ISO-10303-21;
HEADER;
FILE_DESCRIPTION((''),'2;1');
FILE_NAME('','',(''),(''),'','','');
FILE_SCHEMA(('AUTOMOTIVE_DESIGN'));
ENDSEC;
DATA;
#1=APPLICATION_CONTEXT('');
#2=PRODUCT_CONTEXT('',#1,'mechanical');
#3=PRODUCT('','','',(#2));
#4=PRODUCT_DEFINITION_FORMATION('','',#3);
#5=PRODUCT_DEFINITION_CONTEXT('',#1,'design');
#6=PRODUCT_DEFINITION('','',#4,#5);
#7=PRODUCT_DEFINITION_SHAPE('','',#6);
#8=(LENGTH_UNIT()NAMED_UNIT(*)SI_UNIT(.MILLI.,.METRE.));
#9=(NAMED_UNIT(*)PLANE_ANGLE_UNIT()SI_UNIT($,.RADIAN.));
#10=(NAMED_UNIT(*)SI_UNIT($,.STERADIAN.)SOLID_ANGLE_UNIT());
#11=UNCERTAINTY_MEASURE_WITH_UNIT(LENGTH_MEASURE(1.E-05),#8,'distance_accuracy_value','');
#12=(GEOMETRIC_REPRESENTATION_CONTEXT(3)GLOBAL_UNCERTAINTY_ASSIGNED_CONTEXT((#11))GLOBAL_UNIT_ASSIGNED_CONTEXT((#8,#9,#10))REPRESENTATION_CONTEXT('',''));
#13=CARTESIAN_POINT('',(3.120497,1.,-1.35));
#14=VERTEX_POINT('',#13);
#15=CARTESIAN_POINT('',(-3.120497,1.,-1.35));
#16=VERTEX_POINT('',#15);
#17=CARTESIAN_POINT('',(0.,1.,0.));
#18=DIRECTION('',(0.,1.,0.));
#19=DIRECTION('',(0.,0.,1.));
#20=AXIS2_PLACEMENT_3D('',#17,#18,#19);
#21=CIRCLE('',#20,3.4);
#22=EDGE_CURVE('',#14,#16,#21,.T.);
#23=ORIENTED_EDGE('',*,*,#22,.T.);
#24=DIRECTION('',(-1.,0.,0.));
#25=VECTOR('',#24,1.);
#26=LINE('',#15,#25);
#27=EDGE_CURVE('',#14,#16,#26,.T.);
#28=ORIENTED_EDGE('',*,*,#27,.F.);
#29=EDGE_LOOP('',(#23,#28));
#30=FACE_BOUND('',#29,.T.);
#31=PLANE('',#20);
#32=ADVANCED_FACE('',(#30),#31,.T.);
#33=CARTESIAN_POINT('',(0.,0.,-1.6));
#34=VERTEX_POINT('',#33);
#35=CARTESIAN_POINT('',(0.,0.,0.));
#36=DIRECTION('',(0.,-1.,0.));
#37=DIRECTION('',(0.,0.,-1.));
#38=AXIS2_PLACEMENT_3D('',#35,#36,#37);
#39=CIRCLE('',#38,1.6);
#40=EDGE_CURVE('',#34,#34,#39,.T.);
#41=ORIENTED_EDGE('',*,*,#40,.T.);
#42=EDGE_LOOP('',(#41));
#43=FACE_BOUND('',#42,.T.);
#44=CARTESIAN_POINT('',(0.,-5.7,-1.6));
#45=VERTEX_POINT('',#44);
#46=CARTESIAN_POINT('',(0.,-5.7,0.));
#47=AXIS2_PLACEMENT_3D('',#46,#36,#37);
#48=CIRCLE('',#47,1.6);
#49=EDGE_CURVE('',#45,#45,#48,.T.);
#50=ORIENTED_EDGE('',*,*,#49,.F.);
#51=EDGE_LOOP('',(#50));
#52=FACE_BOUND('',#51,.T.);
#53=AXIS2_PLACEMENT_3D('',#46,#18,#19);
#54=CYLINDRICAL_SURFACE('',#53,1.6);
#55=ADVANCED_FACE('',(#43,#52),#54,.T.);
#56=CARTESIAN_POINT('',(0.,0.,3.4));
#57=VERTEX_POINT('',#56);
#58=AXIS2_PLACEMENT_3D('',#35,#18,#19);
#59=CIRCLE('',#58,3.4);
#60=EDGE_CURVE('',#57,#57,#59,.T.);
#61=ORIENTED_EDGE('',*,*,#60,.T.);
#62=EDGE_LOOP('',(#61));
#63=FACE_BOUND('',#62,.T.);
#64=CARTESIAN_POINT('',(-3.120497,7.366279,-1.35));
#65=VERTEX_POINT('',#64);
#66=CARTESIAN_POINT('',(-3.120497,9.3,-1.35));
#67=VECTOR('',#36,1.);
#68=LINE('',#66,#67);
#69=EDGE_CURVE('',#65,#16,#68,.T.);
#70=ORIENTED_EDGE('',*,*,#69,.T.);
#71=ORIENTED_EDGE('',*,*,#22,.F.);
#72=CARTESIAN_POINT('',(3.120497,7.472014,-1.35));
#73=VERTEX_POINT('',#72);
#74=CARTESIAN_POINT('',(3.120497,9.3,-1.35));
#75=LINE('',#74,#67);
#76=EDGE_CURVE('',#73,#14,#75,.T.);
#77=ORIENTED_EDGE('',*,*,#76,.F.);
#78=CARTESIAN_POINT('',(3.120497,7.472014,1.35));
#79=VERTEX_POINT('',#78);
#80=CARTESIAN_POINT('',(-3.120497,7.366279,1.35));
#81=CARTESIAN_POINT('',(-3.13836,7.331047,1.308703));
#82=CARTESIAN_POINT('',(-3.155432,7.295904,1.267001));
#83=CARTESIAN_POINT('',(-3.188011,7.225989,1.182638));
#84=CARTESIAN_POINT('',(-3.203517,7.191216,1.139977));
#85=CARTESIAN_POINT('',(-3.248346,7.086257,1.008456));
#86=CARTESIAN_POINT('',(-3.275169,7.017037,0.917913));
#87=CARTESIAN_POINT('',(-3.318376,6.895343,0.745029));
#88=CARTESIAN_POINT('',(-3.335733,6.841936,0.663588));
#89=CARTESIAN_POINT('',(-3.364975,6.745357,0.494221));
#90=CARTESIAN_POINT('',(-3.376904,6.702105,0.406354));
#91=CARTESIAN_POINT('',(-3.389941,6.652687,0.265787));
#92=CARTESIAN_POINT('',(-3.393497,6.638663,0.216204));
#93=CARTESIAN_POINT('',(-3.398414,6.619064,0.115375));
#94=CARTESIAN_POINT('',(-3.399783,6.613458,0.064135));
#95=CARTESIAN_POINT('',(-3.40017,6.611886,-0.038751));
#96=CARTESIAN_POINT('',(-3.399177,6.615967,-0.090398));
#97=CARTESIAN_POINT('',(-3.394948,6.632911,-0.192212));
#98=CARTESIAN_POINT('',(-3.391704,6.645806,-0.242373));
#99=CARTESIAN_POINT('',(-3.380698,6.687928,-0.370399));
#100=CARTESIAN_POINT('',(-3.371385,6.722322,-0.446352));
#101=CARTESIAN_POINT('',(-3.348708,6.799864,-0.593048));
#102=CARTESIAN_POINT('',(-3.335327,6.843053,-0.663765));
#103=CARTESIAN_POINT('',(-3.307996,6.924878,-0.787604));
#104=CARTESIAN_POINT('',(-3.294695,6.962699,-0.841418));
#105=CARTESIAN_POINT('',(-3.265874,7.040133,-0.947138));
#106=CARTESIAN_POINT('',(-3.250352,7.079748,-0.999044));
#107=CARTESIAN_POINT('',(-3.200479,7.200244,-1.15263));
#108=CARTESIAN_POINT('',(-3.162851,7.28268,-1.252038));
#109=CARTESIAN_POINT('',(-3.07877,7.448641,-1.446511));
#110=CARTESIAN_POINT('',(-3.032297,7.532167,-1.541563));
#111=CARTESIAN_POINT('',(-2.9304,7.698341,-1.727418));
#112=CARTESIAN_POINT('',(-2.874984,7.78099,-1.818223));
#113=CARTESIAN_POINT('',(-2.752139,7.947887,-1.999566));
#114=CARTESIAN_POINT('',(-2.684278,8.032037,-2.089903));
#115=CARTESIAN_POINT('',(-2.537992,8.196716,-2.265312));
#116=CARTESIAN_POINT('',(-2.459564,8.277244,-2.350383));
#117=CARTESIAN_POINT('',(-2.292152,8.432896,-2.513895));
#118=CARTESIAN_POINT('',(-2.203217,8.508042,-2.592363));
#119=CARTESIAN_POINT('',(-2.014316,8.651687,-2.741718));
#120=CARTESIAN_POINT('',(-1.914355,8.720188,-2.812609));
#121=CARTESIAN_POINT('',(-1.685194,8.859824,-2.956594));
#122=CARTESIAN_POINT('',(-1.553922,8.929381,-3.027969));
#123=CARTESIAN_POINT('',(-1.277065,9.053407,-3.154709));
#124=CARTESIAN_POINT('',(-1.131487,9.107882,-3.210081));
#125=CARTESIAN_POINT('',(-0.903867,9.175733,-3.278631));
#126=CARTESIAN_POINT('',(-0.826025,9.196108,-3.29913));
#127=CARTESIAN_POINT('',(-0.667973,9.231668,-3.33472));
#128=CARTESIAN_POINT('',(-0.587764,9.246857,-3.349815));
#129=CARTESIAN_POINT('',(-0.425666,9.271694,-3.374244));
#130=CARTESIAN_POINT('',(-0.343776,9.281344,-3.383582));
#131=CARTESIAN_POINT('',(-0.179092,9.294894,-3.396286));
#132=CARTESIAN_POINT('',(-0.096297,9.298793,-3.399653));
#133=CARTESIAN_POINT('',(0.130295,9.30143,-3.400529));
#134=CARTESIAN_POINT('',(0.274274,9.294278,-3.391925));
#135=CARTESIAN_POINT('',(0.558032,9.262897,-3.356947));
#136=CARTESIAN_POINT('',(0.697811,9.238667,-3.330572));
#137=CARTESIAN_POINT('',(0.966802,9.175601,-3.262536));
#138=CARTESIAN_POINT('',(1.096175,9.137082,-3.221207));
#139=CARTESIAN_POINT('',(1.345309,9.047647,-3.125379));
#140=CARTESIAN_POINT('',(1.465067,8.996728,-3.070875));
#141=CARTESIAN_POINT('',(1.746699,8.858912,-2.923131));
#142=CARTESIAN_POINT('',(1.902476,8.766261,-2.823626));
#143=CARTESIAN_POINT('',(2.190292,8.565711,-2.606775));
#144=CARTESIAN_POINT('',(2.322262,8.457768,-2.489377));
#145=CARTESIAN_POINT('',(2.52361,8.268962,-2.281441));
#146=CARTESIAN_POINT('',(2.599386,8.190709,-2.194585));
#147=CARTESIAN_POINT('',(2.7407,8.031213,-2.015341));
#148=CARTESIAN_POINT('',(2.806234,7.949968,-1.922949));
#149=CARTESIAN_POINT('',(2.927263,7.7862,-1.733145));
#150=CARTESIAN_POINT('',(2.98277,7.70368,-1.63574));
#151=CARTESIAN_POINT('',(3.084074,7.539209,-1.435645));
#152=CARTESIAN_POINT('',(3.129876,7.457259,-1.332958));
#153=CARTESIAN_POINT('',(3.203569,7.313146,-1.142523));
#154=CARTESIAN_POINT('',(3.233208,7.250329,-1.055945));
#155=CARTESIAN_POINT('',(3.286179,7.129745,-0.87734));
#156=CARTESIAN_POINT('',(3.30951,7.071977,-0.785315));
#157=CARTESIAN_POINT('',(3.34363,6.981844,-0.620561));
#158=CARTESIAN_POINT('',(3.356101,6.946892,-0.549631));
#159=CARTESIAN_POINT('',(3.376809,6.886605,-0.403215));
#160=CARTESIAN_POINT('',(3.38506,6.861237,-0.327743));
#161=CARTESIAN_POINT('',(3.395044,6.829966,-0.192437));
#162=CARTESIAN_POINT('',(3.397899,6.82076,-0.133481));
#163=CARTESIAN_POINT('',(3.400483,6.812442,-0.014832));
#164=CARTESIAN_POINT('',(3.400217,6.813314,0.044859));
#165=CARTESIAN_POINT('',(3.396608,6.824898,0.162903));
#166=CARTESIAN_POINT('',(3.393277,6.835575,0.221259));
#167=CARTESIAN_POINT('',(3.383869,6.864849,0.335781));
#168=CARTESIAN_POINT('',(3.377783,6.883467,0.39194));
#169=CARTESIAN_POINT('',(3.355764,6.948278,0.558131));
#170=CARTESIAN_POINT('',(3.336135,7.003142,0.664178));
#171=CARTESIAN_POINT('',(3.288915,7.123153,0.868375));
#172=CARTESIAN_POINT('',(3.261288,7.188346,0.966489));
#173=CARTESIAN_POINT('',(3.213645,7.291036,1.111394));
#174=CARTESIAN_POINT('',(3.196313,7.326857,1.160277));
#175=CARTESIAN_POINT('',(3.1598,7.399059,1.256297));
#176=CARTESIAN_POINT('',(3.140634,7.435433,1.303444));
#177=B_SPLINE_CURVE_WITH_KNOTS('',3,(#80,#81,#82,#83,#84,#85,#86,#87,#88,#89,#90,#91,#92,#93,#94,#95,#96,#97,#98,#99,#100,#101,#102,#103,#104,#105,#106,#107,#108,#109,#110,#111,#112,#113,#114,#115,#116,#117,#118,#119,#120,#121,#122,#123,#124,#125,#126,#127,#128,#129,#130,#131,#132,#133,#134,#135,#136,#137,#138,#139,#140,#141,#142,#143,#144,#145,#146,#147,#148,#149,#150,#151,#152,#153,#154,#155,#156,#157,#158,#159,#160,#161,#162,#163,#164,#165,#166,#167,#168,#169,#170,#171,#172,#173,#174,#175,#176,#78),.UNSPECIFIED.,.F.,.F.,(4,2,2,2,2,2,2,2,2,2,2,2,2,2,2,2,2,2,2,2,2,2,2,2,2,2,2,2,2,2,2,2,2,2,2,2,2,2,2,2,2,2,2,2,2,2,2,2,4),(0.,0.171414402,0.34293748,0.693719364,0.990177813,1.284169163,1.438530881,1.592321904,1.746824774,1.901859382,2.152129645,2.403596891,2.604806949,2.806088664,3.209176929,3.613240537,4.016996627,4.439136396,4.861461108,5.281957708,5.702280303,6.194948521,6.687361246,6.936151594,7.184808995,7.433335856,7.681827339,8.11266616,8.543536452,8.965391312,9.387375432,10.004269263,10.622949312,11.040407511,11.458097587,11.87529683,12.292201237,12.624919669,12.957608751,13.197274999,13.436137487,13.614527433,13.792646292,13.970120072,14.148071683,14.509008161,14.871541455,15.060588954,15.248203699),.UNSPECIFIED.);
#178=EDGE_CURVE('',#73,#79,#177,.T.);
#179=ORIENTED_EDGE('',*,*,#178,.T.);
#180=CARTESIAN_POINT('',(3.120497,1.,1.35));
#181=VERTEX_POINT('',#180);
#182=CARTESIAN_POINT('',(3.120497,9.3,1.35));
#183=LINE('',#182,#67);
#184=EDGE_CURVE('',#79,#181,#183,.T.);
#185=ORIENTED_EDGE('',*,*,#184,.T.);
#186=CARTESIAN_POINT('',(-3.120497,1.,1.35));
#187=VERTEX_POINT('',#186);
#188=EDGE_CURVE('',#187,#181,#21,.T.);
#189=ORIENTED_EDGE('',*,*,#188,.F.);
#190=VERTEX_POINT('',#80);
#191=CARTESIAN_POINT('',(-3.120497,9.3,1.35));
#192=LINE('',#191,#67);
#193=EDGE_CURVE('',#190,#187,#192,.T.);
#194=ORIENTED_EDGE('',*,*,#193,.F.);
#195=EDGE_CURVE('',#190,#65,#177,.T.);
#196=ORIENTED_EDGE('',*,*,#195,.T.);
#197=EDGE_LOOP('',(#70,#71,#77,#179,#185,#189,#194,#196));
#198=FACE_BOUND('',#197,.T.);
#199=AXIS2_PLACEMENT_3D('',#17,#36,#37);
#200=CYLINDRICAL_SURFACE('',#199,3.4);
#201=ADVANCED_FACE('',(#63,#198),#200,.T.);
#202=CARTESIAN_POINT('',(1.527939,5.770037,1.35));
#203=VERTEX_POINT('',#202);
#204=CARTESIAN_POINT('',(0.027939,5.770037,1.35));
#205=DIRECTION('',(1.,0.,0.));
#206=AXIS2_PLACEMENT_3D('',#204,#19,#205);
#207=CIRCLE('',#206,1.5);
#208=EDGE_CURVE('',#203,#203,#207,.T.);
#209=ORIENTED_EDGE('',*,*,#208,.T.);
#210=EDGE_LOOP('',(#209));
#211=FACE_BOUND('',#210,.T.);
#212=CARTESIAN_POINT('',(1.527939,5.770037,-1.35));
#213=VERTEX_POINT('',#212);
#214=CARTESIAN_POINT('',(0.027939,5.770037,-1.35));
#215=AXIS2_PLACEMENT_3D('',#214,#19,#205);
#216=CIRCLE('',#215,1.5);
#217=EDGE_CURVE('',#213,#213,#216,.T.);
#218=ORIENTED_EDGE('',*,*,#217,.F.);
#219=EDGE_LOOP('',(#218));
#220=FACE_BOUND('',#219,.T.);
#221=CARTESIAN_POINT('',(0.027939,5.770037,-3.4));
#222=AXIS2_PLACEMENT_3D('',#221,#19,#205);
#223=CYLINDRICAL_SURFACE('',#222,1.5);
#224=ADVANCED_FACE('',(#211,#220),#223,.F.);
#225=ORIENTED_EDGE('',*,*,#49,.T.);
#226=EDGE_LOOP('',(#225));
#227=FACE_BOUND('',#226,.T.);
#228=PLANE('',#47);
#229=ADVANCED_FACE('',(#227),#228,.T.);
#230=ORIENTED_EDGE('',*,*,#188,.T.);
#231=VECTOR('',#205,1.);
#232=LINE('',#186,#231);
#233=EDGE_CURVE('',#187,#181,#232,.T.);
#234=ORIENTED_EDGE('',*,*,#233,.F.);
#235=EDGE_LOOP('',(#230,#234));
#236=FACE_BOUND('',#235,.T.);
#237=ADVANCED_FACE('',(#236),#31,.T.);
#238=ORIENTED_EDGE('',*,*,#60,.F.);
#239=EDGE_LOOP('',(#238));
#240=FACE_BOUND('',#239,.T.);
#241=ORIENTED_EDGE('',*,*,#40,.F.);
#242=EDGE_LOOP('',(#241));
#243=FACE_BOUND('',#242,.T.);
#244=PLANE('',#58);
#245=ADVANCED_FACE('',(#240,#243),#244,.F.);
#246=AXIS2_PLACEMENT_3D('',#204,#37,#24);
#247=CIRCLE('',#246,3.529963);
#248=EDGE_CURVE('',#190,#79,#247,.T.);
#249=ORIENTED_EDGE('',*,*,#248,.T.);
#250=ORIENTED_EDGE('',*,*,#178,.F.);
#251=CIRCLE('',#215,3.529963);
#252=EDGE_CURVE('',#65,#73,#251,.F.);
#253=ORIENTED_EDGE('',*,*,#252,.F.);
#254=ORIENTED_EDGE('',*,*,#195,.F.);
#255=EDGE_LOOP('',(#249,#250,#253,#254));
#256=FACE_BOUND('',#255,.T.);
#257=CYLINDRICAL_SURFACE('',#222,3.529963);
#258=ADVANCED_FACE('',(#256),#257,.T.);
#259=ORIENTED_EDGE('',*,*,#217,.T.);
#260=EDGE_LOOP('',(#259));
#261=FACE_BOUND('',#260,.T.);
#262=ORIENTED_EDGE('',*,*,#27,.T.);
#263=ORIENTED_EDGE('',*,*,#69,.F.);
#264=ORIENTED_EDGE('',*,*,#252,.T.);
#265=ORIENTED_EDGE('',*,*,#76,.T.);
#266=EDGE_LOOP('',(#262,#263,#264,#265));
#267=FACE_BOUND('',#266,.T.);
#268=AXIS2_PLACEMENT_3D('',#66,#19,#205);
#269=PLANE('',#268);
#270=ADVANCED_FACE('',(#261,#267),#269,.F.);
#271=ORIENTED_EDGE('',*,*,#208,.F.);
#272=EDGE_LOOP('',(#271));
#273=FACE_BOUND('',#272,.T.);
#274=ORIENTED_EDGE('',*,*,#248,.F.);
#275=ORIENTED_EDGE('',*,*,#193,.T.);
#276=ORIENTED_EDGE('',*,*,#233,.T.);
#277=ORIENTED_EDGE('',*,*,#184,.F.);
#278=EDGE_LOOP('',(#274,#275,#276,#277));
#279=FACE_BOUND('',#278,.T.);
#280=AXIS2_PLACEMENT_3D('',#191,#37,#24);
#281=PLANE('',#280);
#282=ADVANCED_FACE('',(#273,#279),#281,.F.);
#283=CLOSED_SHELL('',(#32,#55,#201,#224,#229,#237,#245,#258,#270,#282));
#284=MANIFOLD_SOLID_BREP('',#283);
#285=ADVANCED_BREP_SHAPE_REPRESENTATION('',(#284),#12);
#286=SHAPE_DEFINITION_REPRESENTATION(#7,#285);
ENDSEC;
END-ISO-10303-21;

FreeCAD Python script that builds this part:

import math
import FreeCAD as App
import Part
import Sketcher
Q = App.Units.Quantity

doc = App.newDocument("Part")
body = doc.addObject("PartDesign::Body", "Body")

# Sketch on XZ plane
sketch1 = doc.addObject("Sketcher::SketchObject", "Sketch")
body.addObject(sketch1)
sketch1.AttachmentSupport = (doc.XZ_Plane, [""])
sketch1.MapMode = "FlatFace"
sketch1.addGeometry(Part.Circle(App.Vector(0, 0, 0), App.Vector(0, 0, 1), 3.4), False)
sketch1.addConstraint(Sketcher.Constraint("Coincident", 0, 3, -1, 1))
sketch1.addConstraint(Sketcher.Constraint("Diameter", 0, Q("6.8 mm")))
pad1 = doc.addObject("PartDesign::Pad", "Pad")
body.addObject(pad1)
pad1.Profile = sketch1
pad1.Length = 1
pad1.Reversed = True

# Sketch on XZ plane
sketch2 = doc.addObject("Sketcher::SketchObject", "Sketch001")
body.addObject(sketch2)
sketch2.AttachmentSupport = (doc.XZ_Plane, [""])
sketch2.MapMode = "FlatFace"
sketch2.AttachmentOffset = App.Placement(App.Vector(0, 0, -1), App.Rotation())
sketch2.addGeometry(Part.LineSegment(App.Vector(3.120497, -1.35, 0), App.Vector(-3.120497, -1.35, 0)), False)
sketch2.addGeometry(Part.ArcOfCircle(Part.Circle(App.Vector(0, 0, 0), App.Vector(0, 0, 1), 3.4), math.radians(156.60556), math.radians(203.39444)), False)
sketch2.addGeometry(Part.LineSegment(App.Vector(-3.120497, 1.35, 0), App.Vector(3.120497, 1.35, 0)), False)
sketch2.addGeometry(Part.ArcOfCircle(Part.Circle(App.Vector(0, 0, 0), App.Vector(0, 0, 1), 3.4), math.radians(-23.39444), math.radians(23.39444)), False)
sketch2.addConstraint(Sketcher.Constraint("Coincident", 0, 2, 1, 2))
sketch2.addConstraint(Sketcher.Constraint("Coincident", 1, 1, 2, 1))
sketch2.addConstraint(Sketcher.Constraint("Coincident", 2, 2, 3, 2))
sketch2.addConstraint(Sketcher.Constraint("Coincident", 3, 1, 0, 1))
sketch2.addConstraint(Sketcher.Constraint("Horizontal", 0))
sketch2.addConstraint(Sketcher.Constraint("Horizontal", 2))
sketch2.addConstraint(Sketcher.Constraint("Coincident", 1, 3, -1, 1))
sketch2.addConstraint(Sketcher.Constraint("Coincident", 3, 3, -1, 1))
sketch2.addConstraint(Sketcher.Constraint("Equal", 1, 3))
sketch2.addConstraint(Sketcher.Constraint("Vertical", 0, 2, 1, 1))
sketch2.addConstraint(Sketcher.Constraint("Radius", 1, Q("3.4 mm")))
sketch2.addConstraint(Sketcher.Constraint("DistanceY", 0, 2, 1, 1, Q("2.7 mm")))
pad2 = doc.addObject("PartDesign::Pad", "Pad001")
body.addObject(pad2)
pad2.Profile = sketch2
pad2.Length = 8.3
pad2.Reversed = True

# Sketch on XY plane
sketch3 = doc.addObject("Sketcher::SketchObject", "Sketch002")
body.addObject(sketch3)
sketch3.AttachmentSupport = (doc.XY_Plane, [""])
sketch3.MapMode = "FlatFace"
sketch3.AttachmentOffset = App.Placement(App.Vector(0, 0, 1.35), App.Rotation())
sketch3.addGeometry(Part.LineSegment(App.Vector(-3.4, 9.766289, 0), App.Vector(-3.4, 6.612576, 0)), False)
sketch3.addGeometry(Part.ArcOfCircle(Part.Circle(App.Vector(0.027939, 5.770037, 0), App.Vector(0, 0, 1), 3.529963), math.radians(17.201981), math.radians(166.191237)), False)
sketch3.addGeometry(Part.LineSegment(App.Vector(3.4, 6.813992, 0), App.Vector(3.4, 9.766289, 0)), False)
sketch3.addGeometry(Part.LineSegment(App.Vector(3.4, 9.766289, 0), App.Vector(-3.4, 9.766289, 0)), False)
sketch3.addConstraint(Sketcher.Constraint("Coincident", 0, 2, 1, 2))
sketch3.addConstraint(Sketcher.Constraint("Coincident", 1, 1, 2, 1))
sketch3.addConstraint(Sketcher.Constraint("Coincident", 2, 2, 3, 1))
sketch3.addConstraint(Sketcher.Constraint("Coincident", 3, 2, 0, 1))
sketch3.addConstraint(Sketcher.Constraint("Vertical", 0))
sketch3.addConstraint(Sketcher.Constraint("Vertical", 2))
sketch3.addConstraint(Sketcher.Constraint("Horizontal", 3))
sketch3.addConstraint(Sketcher.Constraint("DistanceX", 3, 2, 3, 1, Q("6.8 mm")))
sketch3.addConstraint(Sketcher.Constraint("DistanceX", 0, 2, -1, 1, Q("3.4 mm")))
sketch3.addConstraint(Sketcher.Constraint("Radius", 1, Q("3.529963 mm")))
sketch3.addConstraint(Sketcher.Constraint("DistanceY", 0, 2, 0, 1, Q("3.153713 mm")))
sketch3.addConstraint(Sketcher.Constraint("DistanceY", 2, 1, 2, 2, Q("2.952297 mm")))
sketch3.addConstraint(Sketcher.Constraint("DistanceY", -1, 1, 2, 2, Q("9.766289 mm")))
pocket1 = doc.addObject("PartDesign::Pocket", "Pocket")
body.addObject(pocket1)
pocket1.Profile = sketch3
pocket1.Type = "ThroughAll"

# Sketch on XY plane
sketch4 = doc.addObject("Sketcher::SketchObject", "Sketch003")
body.addObject(sketch4)
sketch4.AttachmentSupport = (doc.XY_Plane, [""])
sketch4.MapMode = "FlatFace"
sketch4.AttachmentOffset = App.Placement(App.Vector(0, 0, 1.35), App.Rotation())
sketch4.addGeometry(Part.Circle(App.Vector(0.027939, 5.770037, 0), App.Vector(0, 0, 1), 1.5), False)
sketch4.addConstraint(Sketcher.Constraint("Diameter", 0, Q("3 mm")))
sketch4.addConstraint(Sketcher.Constraint("DistanceX", -1, 1, 0, 3, Q("0.027939 mm")))
sketch4.addConstraint(Sketcher.Constraint("DistanceY", -1, 1, 0, 3, Q("5.770037 mm")))
pocket2 = doc.addObject("PartDesign::Pocket", "Pocket001")
body.addObject(pocket2)
pocket2.Profile = sketch4
pocket2.Type = "ThroughAll"

# Sketch on XZ plane
sketch5 = doc.addObject("Sketcher::SketchObject", "Sketch004")
body.addObject(sketch5)
sketch5.AttachmentSupport = (doc.XZ_Plane, [""])
sketch5.MapMode = "FlatFace"
sketch5.addGeometry(Part.Circle(App.Vector(0, 0, 0), App.Vector(0, 0, 1), 1.6), False)
sketch5.addConstraint(Sketcher.Constraint("Coincident", 0, 3, -1, 1))
sketch5.addConstraint(Sketcher.Constraint("Diameter", 0, Q("3.2 mm")))
pad3 = doc.addObject("PartDesign::Pad", "Pad002")
body.addObject(pad3)
pad3.Profile = sketch5
pad3.Length = 5.7

doc.recompute()
